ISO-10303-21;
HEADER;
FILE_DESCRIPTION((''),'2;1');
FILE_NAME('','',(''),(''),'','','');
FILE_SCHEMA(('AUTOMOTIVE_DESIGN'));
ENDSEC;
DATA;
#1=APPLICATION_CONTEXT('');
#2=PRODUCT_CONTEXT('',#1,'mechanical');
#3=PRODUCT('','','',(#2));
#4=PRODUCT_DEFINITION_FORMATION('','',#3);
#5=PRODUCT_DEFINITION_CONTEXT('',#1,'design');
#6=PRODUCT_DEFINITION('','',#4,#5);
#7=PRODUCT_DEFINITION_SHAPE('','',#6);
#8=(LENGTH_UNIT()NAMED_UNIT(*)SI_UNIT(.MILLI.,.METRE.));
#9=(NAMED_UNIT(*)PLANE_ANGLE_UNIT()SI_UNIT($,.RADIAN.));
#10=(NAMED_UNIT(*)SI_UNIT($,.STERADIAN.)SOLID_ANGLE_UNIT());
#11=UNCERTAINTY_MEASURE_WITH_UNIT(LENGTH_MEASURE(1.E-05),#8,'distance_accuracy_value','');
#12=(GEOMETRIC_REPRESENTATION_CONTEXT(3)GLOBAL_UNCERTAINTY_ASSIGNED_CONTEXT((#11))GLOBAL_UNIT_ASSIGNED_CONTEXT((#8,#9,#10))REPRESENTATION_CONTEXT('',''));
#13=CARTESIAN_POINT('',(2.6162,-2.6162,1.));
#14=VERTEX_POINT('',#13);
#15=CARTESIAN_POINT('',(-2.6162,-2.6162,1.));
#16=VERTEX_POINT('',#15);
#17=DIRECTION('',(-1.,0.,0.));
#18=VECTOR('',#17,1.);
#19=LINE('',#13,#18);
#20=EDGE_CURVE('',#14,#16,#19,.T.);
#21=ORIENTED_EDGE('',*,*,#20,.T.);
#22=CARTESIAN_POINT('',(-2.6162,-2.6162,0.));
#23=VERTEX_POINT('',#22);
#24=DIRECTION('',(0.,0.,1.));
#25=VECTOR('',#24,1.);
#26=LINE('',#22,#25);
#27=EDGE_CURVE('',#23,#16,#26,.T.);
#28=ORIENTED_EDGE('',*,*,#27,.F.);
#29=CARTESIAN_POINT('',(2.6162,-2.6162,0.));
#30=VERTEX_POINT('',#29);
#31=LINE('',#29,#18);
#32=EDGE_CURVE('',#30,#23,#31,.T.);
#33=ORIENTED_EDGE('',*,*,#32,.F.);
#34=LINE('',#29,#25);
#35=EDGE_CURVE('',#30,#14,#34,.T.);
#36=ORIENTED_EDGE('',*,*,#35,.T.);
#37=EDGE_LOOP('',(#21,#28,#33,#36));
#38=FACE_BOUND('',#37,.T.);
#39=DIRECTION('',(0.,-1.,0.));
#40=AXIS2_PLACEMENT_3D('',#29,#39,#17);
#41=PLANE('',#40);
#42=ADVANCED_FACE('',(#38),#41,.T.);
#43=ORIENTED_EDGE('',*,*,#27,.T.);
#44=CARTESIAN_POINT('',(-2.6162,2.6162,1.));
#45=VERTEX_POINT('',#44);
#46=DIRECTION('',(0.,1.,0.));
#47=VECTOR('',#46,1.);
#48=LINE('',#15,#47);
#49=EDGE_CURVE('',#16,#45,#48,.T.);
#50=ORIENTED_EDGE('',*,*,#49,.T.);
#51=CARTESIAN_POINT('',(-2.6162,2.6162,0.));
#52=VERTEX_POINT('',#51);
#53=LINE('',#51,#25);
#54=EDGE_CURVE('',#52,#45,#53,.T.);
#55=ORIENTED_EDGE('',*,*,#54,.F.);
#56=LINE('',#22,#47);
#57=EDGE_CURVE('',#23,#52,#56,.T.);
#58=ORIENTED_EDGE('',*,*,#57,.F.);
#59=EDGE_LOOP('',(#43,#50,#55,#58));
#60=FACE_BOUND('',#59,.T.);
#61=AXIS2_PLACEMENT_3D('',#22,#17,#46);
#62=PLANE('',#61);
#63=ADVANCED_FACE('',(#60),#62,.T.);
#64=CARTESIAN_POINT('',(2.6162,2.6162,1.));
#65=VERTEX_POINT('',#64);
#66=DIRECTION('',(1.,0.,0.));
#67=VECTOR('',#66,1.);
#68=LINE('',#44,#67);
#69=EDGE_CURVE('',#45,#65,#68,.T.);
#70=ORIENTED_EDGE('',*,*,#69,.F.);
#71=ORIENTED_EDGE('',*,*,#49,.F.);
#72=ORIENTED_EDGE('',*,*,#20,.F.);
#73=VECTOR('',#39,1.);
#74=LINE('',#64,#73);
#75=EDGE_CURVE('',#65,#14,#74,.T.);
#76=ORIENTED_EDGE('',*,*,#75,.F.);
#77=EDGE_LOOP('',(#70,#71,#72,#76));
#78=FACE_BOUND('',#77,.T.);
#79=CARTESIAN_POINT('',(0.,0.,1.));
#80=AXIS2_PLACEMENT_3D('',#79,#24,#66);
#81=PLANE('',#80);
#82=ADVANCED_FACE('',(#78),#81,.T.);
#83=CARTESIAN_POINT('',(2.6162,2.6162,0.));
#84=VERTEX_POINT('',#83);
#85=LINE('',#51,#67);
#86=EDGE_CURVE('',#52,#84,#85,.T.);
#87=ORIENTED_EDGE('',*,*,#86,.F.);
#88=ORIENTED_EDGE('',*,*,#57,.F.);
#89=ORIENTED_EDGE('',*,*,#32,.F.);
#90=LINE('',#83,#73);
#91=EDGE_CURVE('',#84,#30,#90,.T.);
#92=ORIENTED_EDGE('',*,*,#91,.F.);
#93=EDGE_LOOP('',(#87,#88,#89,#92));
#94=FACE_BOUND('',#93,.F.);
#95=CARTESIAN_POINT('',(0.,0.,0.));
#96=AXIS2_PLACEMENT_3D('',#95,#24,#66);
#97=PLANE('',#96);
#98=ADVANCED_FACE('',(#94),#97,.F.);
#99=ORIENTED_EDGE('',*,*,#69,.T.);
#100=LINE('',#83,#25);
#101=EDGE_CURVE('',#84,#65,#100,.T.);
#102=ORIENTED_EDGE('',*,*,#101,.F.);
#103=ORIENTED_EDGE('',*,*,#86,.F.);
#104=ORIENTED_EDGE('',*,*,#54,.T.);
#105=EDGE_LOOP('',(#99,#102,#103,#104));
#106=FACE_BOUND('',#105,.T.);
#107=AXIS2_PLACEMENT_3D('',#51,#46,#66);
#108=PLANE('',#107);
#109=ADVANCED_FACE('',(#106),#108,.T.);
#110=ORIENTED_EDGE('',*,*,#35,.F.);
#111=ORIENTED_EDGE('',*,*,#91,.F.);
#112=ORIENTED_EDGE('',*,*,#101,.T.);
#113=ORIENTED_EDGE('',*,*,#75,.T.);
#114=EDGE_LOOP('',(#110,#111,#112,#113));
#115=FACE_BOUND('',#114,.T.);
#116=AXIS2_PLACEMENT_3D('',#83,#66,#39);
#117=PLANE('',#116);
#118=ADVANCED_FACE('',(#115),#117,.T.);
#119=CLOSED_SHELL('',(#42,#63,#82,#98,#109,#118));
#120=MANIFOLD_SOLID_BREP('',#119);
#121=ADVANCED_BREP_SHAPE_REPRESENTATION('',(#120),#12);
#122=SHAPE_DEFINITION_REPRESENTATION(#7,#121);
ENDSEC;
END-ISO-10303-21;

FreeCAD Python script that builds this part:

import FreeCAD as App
import Part
import Sketcher
from FreeCAD import Vector

doc = App.newDocument("Part")
body = doc.addObject("PartDesign::Body", "Body")

sketch1 = body.newObject("Sketcher::SketchObject", "Sketch")
sketch1.AttachmentSupport = (doc.getObject("XY_Plane"), [""])
sketch1.MapMode = "FlatFace"
sketch1.addGeometry([
    Part.LineSegment(Vector(2.6162, 2.6162, 0), Vector(-2.6162, 2.6162, 0)),
    Part.LineSegment(Vector(-2.6162, 2.6162, 0), Vector(-2.6162, -2.6162, 0)),
    Part.LineSegment(Vector(-2.6162, -2.6162, 0), Vector(2.6162, -2.6162, 0)),
    Part.LineSegment(Vector(2.6162, -2.6162, 0), Vector(2.6162, 2.6162, 0)),
], False)
sketch1.addConstraint([
    Sketcher.Constraint("Coincident", 0, 2, 1, 1),
    Sketcher.Constraint("Coincident", 1, 2, 2, 1),
    Sketcher.Constraint("Coincident", 2, 2, 3, 1),
    Sketcher.Constraint("Coincident", 3, 2, 0, 1),
    Sketcher.Constraint("Horizontal", 0),
    Sketcher.Constraint("Vertical", 1),
    Sketcher.Constraint("Horizontal", 2),
    Sketcher.Constraint("Vertical", 3),
    Sketcher.Constraint("Symmetric", 0, 2, 2, 2, -1, 1),
    Sketcher.Constraint("Equal", 2, 1),
    Sketcher.Constraint("DistanceX", 0, 2, 0, 1, 5.2324),
])
pad1 = body.newObject("PartDesign::Pad", "Pad")
pad1.Profile = sketch1
pad1.Length = 1

doc.recompute()
